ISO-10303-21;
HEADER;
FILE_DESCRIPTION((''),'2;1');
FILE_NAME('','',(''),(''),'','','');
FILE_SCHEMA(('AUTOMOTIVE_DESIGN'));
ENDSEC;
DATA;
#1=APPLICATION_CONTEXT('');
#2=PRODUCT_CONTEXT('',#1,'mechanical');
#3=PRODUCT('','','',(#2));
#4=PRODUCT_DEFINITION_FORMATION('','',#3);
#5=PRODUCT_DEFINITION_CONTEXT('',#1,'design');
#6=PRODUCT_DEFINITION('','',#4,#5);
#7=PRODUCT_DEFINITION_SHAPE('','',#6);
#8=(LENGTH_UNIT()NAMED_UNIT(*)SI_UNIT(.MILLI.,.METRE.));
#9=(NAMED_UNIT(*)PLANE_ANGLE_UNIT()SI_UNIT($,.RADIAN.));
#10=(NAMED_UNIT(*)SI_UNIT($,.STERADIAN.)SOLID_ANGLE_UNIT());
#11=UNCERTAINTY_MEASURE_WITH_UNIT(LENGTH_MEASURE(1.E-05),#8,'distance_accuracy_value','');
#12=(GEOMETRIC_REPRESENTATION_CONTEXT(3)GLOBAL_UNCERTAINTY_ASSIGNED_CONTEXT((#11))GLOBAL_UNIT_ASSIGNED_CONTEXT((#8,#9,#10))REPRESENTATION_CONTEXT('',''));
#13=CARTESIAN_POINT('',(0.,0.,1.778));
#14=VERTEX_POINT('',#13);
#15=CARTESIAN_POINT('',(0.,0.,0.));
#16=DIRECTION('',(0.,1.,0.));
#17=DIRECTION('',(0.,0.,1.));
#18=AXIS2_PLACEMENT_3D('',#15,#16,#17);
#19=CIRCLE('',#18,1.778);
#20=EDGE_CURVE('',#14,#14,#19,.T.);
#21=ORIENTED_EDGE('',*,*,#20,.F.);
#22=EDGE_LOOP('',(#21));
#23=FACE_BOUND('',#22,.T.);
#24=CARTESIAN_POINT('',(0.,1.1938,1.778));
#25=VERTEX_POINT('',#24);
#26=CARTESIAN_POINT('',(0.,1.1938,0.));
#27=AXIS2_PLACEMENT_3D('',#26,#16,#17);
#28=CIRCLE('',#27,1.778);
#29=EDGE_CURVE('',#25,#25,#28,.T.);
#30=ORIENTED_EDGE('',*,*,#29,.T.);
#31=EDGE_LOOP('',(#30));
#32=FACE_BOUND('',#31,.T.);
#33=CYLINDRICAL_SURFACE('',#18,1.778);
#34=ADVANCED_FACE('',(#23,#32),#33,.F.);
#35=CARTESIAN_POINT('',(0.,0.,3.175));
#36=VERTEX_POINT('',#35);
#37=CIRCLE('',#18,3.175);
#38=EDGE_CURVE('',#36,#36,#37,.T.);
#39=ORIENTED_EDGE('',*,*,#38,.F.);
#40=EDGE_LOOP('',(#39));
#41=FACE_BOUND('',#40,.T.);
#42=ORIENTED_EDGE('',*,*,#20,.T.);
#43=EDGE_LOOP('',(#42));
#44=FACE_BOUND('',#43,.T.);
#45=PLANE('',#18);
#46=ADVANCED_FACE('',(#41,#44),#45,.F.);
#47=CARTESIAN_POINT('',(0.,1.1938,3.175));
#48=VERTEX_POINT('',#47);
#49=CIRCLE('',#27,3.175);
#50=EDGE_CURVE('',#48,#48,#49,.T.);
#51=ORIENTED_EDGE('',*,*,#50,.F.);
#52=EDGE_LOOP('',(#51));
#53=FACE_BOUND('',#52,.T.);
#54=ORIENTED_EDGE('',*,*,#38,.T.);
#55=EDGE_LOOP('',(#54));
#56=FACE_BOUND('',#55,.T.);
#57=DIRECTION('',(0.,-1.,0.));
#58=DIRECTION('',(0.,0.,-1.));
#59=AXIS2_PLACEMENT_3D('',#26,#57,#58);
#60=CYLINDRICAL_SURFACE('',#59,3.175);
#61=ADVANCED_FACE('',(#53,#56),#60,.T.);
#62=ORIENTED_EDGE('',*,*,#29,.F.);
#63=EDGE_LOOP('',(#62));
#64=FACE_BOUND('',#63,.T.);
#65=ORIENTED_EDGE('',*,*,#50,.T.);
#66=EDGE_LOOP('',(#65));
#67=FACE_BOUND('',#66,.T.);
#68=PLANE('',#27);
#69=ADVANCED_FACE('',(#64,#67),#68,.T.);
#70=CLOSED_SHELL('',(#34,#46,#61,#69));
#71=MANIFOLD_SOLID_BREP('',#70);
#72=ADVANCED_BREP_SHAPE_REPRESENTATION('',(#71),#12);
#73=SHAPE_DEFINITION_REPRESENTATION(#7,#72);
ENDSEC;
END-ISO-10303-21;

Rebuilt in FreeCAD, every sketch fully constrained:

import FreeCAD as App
import Part
import Sketcher
from FreeCAD import Vector
Q = App.Units.Quantity

doc = App.newDocument("Part")
body = doc.addObject("PartDesign::Body", "Body")

# Sketch on XZ plane
sketch1 = body.newObject("Sketcher::SketchObject", "Sketch")
sketch1.AttachmentSupport = (doc.getObject("XZ_Plane"), [""])
sketch1.MapMode = "FlatFace"
sketch1.addGeometry(Part.Circle(Vector(0, 0, 0), Vector(0, 0, 1), 3.2), False)
sketch1.addConstraint([
    Sketcher.Constraint("Coincident", 0, 3, -1, 1),
    Sketcher.Constraint("Diameter", 0, Q("0.25 in")),
])
pad1 = body.newObject("PartDesign::Pad", "Pad")
pad1.Profile = sketch1
pad1.Length = Q("0.047 in")
pad1.Reversed = True

# Sketch on XZ plane
sketch2 = body.newObject("Sketcher::SketchObject", "Sketch001")
sketch2.AttachmentSupport = (doc.getObject("XZ_Plane"), [""])
sketch2.MapMode = "FlatFace"
sketch2.AttachmentOffset = App.Placement(Vector(0, 0, -0.047 * 25.4), App.Rotation())
sketch2.addGeometry(Part.Circle(Vector(0, 0, 0), Vector(0, 0, 1), 1.8), False)
sketch2.addConstraint([
    Sketcher.Constraint("Coincident", 0, 3, -1, 1),
    Sketcher.Constraint("Diameter", 0, Q("0.14 in")),
])
pocket1 = body.newObject("PartDesign::Pocket", "Pocket")
pocket1.Profile = sketch2
pocket1.Length = Q("0.047 in")
pocket1.Reversed = True

doc.recompute()
